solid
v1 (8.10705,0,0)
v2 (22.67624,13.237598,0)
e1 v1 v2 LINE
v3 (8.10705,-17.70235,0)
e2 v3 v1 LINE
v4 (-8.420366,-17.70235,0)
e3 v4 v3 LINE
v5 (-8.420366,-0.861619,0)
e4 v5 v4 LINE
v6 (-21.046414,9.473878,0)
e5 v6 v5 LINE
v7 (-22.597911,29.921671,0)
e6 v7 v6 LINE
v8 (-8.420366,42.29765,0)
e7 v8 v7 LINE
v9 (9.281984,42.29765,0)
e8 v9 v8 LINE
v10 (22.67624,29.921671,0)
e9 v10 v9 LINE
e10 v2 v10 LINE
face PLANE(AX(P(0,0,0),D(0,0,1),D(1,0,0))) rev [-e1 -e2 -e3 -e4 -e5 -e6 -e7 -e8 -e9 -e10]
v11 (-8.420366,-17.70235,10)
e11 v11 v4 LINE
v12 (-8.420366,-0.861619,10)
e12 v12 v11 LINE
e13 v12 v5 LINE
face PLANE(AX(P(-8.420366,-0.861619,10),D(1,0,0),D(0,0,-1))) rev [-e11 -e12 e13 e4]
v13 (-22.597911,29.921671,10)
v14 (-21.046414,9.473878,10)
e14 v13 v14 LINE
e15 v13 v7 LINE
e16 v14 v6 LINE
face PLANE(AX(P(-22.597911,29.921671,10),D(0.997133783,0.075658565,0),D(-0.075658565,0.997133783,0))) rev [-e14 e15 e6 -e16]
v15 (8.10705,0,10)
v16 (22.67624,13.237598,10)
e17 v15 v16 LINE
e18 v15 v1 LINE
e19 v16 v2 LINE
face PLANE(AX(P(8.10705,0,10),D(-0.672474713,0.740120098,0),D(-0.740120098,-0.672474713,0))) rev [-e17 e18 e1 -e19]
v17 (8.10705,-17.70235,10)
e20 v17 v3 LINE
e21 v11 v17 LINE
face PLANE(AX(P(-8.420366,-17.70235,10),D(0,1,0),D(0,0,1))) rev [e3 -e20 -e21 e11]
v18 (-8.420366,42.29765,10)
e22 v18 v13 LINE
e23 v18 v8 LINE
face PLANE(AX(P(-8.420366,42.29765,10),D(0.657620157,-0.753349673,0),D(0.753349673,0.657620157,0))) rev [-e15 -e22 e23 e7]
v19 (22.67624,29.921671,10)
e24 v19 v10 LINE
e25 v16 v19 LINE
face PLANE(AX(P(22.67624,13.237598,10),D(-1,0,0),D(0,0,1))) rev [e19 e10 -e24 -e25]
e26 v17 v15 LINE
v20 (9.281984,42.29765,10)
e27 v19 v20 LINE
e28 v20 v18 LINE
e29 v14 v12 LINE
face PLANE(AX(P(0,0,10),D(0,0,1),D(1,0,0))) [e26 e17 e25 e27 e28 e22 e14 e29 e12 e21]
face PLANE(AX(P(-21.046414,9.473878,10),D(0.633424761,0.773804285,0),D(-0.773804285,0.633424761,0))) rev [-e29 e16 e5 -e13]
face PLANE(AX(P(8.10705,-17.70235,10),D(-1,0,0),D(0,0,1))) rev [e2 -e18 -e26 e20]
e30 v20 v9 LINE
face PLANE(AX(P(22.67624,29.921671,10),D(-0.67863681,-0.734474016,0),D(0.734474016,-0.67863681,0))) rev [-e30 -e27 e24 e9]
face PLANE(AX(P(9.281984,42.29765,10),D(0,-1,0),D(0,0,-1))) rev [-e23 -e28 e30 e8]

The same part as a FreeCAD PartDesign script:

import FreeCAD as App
import Part
import Sketcher

doc = App.newDocument("Part")
body = doc.addObject("PartDesign::Body", "Body")

sketch1 = doc.addObject("Sketcher::SketchObject", "Sketch")
body.addObject(sketch1)
sketch1.AttachmentSupport = (doc.XY_Plane, [""])
sketch1.MapMode = "FlatFace"
sketch1.addGeometry(Part.LineSegment(App.Vector(-8, -1, 0), App.Vector(-8, -18, 0)), False)
sketch1.addGeometry(Part.LineSegment(App.Vector(-8, -18, 0), App.Vector(8, -18, 0)), False)
sketch1.addGeometry(Part.LineSegment(App.Vector(8, -18, 0), App.Vector(8, 0, 0)), False)
sketch1.addGeometry(Part.LineSegment(App.Vector(8, 0, 0), App.Vector(23, 13, 0)), False)
sketch1.addGeometry(Part.LineSegment(App.Vector(23, 13, 0), App.Vector(23, 30, 0)), False)
sketch1.addGeometry(Part.LineSegment(App.Vector(23, 30, 0), App.Vector(9, 42, 0)), False)
sketch1.addGeometry(Part.LineSegment(App.Vector(9, 42, 0), App.Vector(-8, 42, 0)), False)
sketch1.addGeometry(Part.LineSegment(App.Vector(-8, 42, 0), App.Vector(-23, 30, 0)), False)
sketch1.addGeometry(Part.LineSegment(App.Vector(-23, 30, 0), App.Vector(-21, 9, 0)), False)
sketch1.addGeometry(Part.LineSegment(App.Vector(-21, 9, 0), App.Vector(-8, -1, 0)), False)
sketch1.addConstraint(Sketcher.Constraint("Coincident", 0, 2, 1, 1))
sketch1.addConstraint(Sketcher.Constraint("Coincident", 1, 2, 2, 1))
sketch1.addConstraint(Sketcher.Constraint("Coincident", 2, 2, 3, 1))
sketch1.addConstraint(Sketcher.Constraint("Coincident", 3, 2, 4, 1))
sketch1.addConstraint(Sketcher.Constraint("Coincident", 4, 2, 5, 1))
sketch1.addConstraint(Sketcher.Constraint("Coincident", 5, 2, 6, 1))
sketch1.addConstraint(Sketcher.Constraint("Coincident", 6, 2, 7, 1))
sketch1.addConstraint(Sketcher.Constraint("Coincident", 7, 2, 8, 1))
sketch1.addConstraint(Sketcher.Constraint("Coincident", 8, 2, 9, 1))
sketch1.addConstraint(Sketcher.Constraint("Coincident", 9, 2, 0, 1))
sketch1.addConstraint(Sketcher.Constraint("Vertical", 0))
sketch1.addConstraint(Sketcher.Constraint("Horizontal", 1))
sketch1.addConstraint(Sketcher.Constraint("Vertical", 2))
sketch1.addConstraint(Sketcher.Constraint("Vertical", 4))
sketch1.addConstraint(Sketcher.Constraint("Horizontal", 6))
sketch1.addConstraint(Sketcher.Constraint("PointOnObject", 2, 2, -1))
sketch1.addConstraint(Sketcher.Constraint("Horizontal", 4, 2, 7, 2))
sketch1.addConstraint(Sketcher.Constraint("Vertical", 0, 2, 6, 2))
sketch1.addConstraint(Sketcher.Constraint("Equal", 6, 2))
sketch1.addConstraint(Sketcher.Constraint("DistanceY", 1, 2, 5, 2, 60.0))
sketch1.addConstraint(Sketcher.Constraint("Distance", 3, 19.684901))
sketch1.addConstraint(Sketcher.Constraint("DistanceX", 6, 2, 6, 1, 17.70235))
sketch1.addConstraint(Sketcher.Constraint("DistanceY", 0, 2, 0, 1, 16.840731))
sketch1.addConstraint(Sketcher.Constraint("Distance", 8, 20.50657))
sketch1.addConstraint(Sketcher.Constraint("Distance", 9, 16.316849))
sketch1.addConstraint(Sketcher.Constraint("DistanceX", 1, 1, 1, 2, 16.527415))
sketch1.addConstraint(Sketcher.Constraint("DistanceY", 4, 1, 4, 2, 16.684073))
sketch1.addConstraint(Sketcher.Constraint("DistanceX", -1, 1, 1, 2, 8.10705))
sketch1.addConstraint(Sketcher.Constraint("DistanceX", -1, 1, 3, 2, 22.67624))
sketch1.addConstraint(Sketcher.Constraint("DistanceX", 7, 2, -1, 1, 22.597911))
pad1 = doc.addObject("PartDesign::Pad", "Pad")
body.addObject(pad1)
pad1.Profile = sketch1
pad1.Length = 10

doc.recompute()
